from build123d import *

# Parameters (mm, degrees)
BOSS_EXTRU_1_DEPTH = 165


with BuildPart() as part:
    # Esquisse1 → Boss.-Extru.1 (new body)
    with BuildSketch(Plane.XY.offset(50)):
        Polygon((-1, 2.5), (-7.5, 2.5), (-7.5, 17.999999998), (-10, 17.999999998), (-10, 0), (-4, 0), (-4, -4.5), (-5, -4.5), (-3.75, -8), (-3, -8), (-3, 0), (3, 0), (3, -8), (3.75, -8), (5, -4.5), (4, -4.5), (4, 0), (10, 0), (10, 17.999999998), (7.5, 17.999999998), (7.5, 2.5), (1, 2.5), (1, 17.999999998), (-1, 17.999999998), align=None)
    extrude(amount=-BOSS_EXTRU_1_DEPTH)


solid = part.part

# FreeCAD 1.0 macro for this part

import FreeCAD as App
import Part
import Sketcher
from FreeCAD import Vector
Q = App.Units.Quantity

doc = App.newDocument("Part")
body = doc.addObject("PartDesign::Body", "Body")

sketch1 = body.newObject("Sketcher::SketchObject", "Sketch")
sketch1.AttachmentSupport = (doc.getObject("XY_Plane"), [""])
sketch1.MapMode = "FlatFace"
sketch1.AttachmentOffset = App.Placement(Vector(0, 0, 50), App.Rotation())
sketch1.addGeometry(Part.LineSegment(Vector(-1, 2.5, 0), Vector(-7.5, 2.5, 0)), False)
sketch1.addGeometry(Part.LineSegment(Vector(-7.5, 2.5, 0), Vector(-7.5, 18, 0)), False)
sketch1.addGeometry(Part.LineSegment(Vector(-7.5, 18, 0), Vector(-10, 18, 0)), False)
sketch1.addGeometry(Part.LineSegment(Vector(-10, 18, 0), Vector(-10, 0, 0)), False)
sketch1.addGeometry(Part.LineSegment(Vector(-10, 0, 0), Vector(-4, 0, 0)), False)
sketch1.addGeometry(Part.LineSegment(Vector(-4, 0, 0), Vector(-4, -4.5, 0)), False)
sketch1.addGeometry(Part.LineSegment(Vector(-4, -4.5, 0), Vector(-5, -4.5, 0)), False)
sketch1.addGeometry(Part.LineSegment(Vector(-5, -4.5, 0), Vector(-3.75, -8, 0)), False)
sketch1.addGeometry(Part.LineSegment(Vector(-3.75, -8, 0), Vector(-3, -8, 0)), False)
sketch1.addGeometry(Part.LineSegment(Vector(-3, -8, 0), Vector(-3, 0, 0)), False)
sketch1.addGeometry(Part.LineSegment(Vector(-3, 0, 0), Vector(3, 0, 0)), False)
sketch1.addGeometry(Part.LineSegment(Vector(3, 0, 0), Vector(3, -8, 0)), False)
sketch1.addGeometry(Part.LineSegment(Vector(3, -8, 0), Vector(3.75, -8, 0)), False)
sketch1.addGeometry(Part.LineSegment(Vector(3.75, -8, 0), Vector(5, -4.5, 0)), False)
sketch1.addGeometry(Part.LineSegment(Vector(5, -4.5, 0), Vector(4, -4.5, 0)), False)
sketch1.addGeometry(Part.LineSegment(Vector(4, -4.5, 0), Vector(4, 0, 0)), False)
sketch1.addGeometry(Part.LineSegment(Vector(4, 0, 0), Vector(10, 0, 0)), False)
sketch1.addGeometry(Part.LineSegment(Vector(10, 0, 0), Vector(10, 18, 0)), False)
sketch1.addGeometry(Part.LineSegment(Vector(10, 18, 0), Vector(7.5, 18, 0)), False)
sketch1.addGeometry(Part.LineSegment(Vector(7.5, 18, 0), Vector(7.5, 2.5, 0)), False)
sketch1.addGeometry(Part.LineSegment(Vector(7.5, 2.5, 0), Vector(1, 2.5, 0)), False)
sketch1.addGeometry(Part.LineSegment(Vector(1, 2.5, 0), Vector(1, 18, 0)), False)
sketch1.addGeometry(Part.LineSegment(Vector(1, 18, 0), Vector(-1, 18, 0)), False)
sketch1.addGeometry(Part.LineSegment(Vector(-1, 18, 0), Vector(-1, 2.5, 0)), False)
sketch1.addConstraint(Sketcher.Constraint("Coincident", 0, 2, 1, 1))
sketch1.addConstraint(Sketcher.Constraint("Coincident", 1, 2, 2, 1))
sketch1.addConstraint(Sketcher.Constraint("Coincident", 2, 2, 3, 1))
sketch1.addConstraint(Sketcher.Constraint("Coincident", 3, 2, 4, 1))
sketch1.addConstraint(Sketcher.Constraint("Coincident", 4, 2, 5, 1))
sketch1.addConstraint(Sketcher.Constraint("Coincident", 5, 2, 6, 1))
sketch1.addConstraint(Sketcher.Constraint("Coincident", 6, 2, 7, 1))
sketch1.addConstraint(Sketcher.Constraint("Coincident", 7, 2, 8, 1))
sketch1.addConstraint(Sketcher.Constraint("Coincident", 8, 2, 9, 1))
sketch1.addConstraint(Sketcher.Constraint("Coincident", 9, 2, 10, 1))
sketch1.addConstraint(Sketcher.Constraint("Coincident", 10, 2, 11, 1))
sketch1.addConstraint(Sketcher.Constraint("Coincident", 11, 2, 12, 1))
sketch1.addConstraint(Sketcher.Constraint("Coincident", 12, 2, 13, 1))
sketch1.addConstraint(Sketcher.Constraint("Coincident", 13, 2, 14, 1))
sketch1.addConstraint(Sketcher.Constraint("Coincident", 14, 2, 15, 1))
sketch1.addConstraint(Sketcher.Constraint("Coincident", 15, 2, 16, 1))
sketch1.addConstraint(Sketcher.Constraint("Coincident", 16, 2, 17, 1))
sketch1.addConstraint(Sketcher.Constraint("Coincident", 17, 2, 18, 1))
sketch1.addConstraint(Sketcher.Constraint("Coincident", 18, 2, 19, 1))
sketch1.addConstraint(Sketcher.Constraint("Coincident", 19, 2, 20, 1))
sketch1.addConstraint(Sketcher.Constraint("Coincident", 20, 2, 21, 1))
sketch1.addConstraint(Sketcher.Constraint("Coincident", 21, 2, 22, 1))
sketch1.addConstraint(Sketcher.Constraint("Coincident", 22, 2, 23, 1))
sketch1.addConstraint(Sketcher.Constraint("Coincident", 23, 2, 0, 1))
sketch1.addConstraint(Sketcher.Constraint("Horizontal", 0))
sketch1.addConstraint(Sketcher.Constraint("Vertical", 1))
sketch1.addConstraint(Sketcher.Constraint("Horizontal", 2))
sketch1.addConstraint(Sketcher.Constraint("Vertical", 3))
sketch1.addConstraint(Sketcher.Constraint("Horizontal", 4))
sketch1.addConstraint(Sketcher.Constraint("Vertical", 5))
sketch1.addConstraint(Sketcher.Constraint("Horizontal", 6))
sketch1.addConstraint(Sketcher.Constraint("Horizontal", 8))
sketch1.addConstraint(Sketcher.Constraint("Vertical", 9))
sketch1.addConstraint(Sketcher.Constraint("Horizontal", 10))
sketch1.addConstraint(Sketcher.Constraint("Vertical", 11))
sketch1.addConstraint(Sketcher.Constraint("Horizontal", 12))
sketch1.addConstraint(Sketcher.Constraint("Horizontal", 14))
sketch1.addConstraint(Sketcher.Constraint("Vertical", 15))
sketch1.addConstraint(Sketcher.Constraint("Horizontal", 16))
sketch1.addConstraint(Sketcher.Constraint("Vertical", 17))
sketch1.addConstraint(Sketcher.Constraint("Horizontal", 18))
sketch1.addConstraint(Sketcher.Constraint("Vertical", 19))
sketch1.addConstraint(Sketcher.Constraint("Horizontal", 20))
sketch1.addConstraint(Sketcher.Constraint("Vertical", 21))
sketch1.addConstraint(Sketcher.Constraint("Horizontal", 22))
sketch1.addConstraint(Sketcher.Constraint("Vertical", 23))
sketch1.addConstraint(Sketcher.Constraint("Symmetric", 9, 2, 10, 2, -1, 1))
sketch1.addConstraint(Sketcher.Constraint("Symmetric", 4, 2, 15, 2, -1, 1))
sketch1.addConstraint(Sketcher.Constraint("Symmetric", 7, 2, 12, 2, -2))
sketch1.addConstraint(Sketcher.Constraint("Symmetric", 6, 2, 13, 2, -2))
sketch1.addConstraint(Sketcher.Constraint("Symmetric", 3, 2, 16, 2, -2))
sketch1.addConstraint(Sketcher.Constraint("Symmetric", 1, 2, 18, 2, -2))
sketch1.addConstraint(Sketcher.Constraint("Symmetric", 20, 2, 23, 2, -2))
sketch1.addConstraint(Sketcher.Constraint("Horizontal", 18, 2, 21, 2))
sketch1.addConstraint(Sketcher.Constraint("Equal", 4, 10))
sketch1.addConstraint(Sketcher.Constraint("DistanceX", 4, 1, 4, 2, Q("6 mm")))
sketch1.addConstraint(Sketcher.Constraint("DistanceX", 6, 2, 6, 1, Q("1 mm")))
sketch1.addConstraint(Sketcher.Constraint("DistanceX", 22, 2, 22, 1, Q("2 mm")))
sketch1.addConstraint(Sketcher.Constraint("DistanceY", 3, 2, 3, 1, Q("18 mm")))
sketch1.addConstraint(Sketcher.Constraint("DistanceY", 9, 1, 9, 2, Q("8 mm")))
sketch1.addConstraint(Sketcher.Constraint("DistanceX", 0, 2, 0, 1, Q("6.5 mm")))
sketch1.addConstraint(Sketcher.Constraint("DistanceX", 2, 2, 2, 1, Q("2.5 mm")))
sketch1.addConstraint(Sketcher.Constraint("DistanceY", 1, 1, 1, 2, Q("15.5 mm")))
sketch1.addConstraint(Sketcher.Constraint("DistanceY", 5, 2, 5, 1, Q("4.5 mm")))
sketch1.addConstraint(Sketcher.Constraint("DistanceX", 8, 1, 8, 2, Q("0.75 mm")))
pad1 = body.newObject("PartDesign::Pad", "Pad")
pad1.Profile = sketch1
pad1.Length = 165
pad1.Reversed = True

doc.recompute()
